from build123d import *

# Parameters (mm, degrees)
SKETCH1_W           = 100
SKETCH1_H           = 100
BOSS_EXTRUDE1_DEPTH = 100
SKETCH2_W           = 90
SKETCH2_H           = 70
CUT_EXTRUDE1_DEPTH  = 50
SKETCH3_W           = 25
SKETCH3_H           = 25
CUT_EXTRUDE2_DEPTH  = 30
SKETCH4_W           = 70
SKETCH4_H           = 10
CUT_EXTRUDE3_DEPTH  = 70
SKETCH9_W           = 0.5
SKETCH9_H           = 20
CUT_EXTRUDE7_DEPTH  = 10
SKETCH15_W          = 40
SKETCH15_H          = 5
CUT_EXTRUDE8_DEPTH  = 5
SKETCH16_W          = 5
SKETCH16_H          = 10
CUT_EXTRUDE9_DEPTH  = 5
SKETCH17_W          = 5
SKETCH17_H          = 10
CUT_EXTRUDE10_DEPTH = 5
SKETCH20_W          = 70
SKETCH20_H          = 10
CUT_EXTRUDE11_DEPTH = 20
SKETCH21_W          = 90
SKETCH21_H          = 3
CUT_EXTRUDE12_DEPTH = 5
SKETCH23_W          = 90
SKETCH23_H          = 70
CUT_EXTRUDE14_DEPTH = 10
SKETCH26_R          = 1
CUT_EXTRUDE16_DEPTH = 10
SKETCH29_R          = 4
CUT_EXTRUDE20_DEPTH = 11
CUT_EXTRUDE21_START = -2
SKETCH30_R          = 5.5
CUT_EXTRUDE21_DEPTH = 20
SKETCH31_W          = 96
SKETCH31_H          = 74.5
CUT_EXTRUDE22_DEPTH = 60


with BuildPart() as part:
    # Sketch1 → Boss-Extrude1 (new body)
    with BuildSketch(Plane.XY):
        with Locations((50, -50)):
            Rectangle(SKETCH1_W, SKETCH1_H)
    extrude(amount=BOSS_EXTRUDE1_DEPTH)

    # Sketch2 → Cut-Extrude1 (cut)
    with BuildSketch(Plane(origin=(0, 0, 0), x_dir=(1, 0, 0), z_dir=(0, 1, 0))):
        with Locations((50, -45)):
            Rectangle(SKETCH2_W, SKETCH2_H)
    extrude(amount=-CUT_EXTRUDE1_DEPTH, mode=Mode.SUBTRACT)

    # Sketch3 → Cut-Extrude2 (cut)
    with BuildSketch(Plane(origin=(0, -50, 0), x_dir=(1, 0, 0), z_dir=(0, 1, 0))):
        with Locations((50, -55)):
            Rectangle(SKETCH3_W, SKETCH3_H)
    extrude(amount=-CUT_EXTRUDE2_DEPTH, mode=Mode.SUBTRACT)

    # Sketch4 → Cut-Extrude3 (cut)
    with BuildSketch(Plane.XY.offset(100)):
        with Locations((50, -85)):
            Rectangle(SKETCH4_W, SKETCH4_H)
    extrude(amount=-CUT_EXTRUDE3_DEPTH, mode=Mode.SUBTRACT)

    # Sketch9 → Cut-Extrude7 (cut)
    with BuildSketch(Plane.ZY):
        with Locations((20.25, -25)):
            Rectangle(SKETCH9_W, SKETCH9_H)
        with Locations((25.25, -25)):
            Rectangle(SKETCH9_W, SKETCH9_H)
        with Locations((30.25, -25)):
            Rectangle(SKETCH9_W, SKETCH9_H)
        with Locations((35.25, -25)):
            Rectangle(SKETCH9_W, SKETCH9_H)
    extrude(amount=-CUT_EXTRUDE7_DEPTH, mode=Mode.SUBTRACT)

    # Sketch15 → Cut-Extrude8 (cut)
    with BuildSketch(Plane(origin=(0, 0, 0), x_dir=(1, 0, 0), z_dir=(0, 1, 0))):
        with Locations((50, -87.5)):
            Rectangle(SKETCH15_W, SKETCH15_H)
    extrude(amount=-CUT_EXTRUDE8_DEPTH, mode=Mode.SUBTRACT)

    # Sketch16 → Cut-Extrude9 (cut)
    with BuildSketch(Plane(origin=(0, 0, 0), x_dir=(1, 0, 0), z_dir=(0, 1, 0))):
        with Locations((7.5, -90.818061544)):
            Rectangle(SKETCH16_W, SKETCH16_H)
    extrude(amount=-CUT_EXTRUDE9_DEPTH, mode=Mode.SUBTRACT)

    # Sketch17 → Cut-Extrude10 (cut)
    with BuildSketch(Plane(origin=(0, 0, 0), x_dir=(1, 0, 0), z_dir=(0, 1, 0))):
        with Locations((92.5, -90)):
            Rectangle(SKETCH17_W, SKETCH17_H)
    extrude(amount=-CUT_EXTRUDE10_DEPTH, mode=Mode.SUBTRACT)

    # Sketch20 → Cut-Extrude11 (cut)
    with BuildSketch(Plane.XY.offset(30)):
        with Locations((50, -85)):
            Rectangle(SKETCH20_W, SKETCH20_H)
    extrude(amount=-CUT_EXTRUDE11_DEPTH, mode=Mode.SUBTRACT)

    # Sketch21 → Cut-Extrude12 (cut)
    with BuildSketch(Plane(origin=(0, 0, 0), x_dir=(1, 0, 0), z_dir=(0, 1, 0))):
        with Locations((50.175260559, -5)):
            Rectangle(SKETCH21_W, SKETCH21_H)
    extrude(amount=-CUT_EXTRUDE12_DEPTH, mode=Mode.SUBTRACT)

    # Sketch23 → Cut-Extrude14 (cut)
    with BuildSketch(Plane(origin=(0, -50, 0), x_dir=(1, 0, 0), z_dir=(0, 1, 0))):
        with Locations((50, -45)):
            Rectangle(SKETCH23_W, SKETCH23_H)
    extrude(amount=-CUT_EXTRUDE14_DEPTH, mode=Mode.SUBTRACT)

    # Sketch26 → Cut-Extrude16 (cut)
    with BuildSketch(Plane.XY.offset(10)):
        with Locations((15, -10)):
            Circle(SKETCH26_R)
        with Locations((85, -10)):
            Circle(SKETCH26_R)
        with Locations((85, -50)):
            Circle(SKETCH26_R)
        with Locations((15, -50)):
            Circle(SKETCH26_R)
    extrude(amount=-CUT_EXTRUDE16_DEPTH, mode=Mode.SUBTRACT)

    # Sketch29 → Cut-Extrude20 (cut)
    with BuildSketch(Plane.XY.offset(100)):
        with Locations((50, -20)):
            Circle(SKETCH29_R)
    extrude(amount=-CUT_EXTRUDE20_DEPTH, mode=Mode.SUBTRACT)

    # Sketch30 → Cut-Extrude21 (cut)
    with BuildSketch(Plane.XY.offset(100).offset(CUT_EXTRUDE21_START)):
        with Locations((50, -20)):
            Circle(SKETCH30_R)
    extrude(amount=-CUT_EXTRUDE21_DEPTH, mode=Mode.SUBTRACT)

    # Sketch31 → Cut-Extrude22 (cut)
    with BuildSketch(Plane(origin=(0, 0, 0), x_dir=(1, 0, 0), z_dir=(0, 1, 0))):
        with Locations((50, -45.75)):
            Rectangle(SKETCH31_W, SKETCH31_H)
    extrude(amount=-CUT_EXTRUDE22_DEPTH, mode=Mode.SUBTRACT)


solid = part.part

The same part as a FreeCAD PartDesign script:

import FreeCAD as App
import Part
import Sketcher
from FreeCAD import Vector


def add_polygon(sketch, points):
    """Adds a closed chain of lines whose ends are joined by coincident constraints."""
    first, n = sketch.GeometryCount, len(points)
    for a, b in zip(points, points[1:] + points[:1]):
        sketch.addGeometry(Part.LineSegment(App.Vector(*a, 0), App.Vector(*b, 0)), False)
    for i in range(n):
        sketch.addConstraint(Sketcher.Constraint("Coincident", first + i, 2, first + (i + 1) % n, 1))

doc = App.newDocument("Part")
body = doc.addObject("PartDesign::Body", "Body")

# Sketch on XY plane
sketch1 = body.newObject("Sketcher::SketchObject", "Sketch")
sketch1.AttachmentSupport = (doc.getObject("XY_Plane"), [""])
sketch1.MapMode = "FlatFace"
add_polygon(sketch1, [(0, 0), (0, -100), (100, -100), (100, 0)])  # lines 0-3
sketch1.addConstraint([
    Sketcher.Constraint("Vertical", 0),
    Sketcher.Constraint("Horizontal", 1),
    Sketcher.Constraint("Vertical", 2),
    Sketcher.Constraint("Horizontal", 3),
    Sketcher.Constraint("Coincident", 3, 2, -1, 1),
    Sketcher.Constraint("Equal", 3, 0),
    Sketcher.Constraint("DistanceX", 1, 1, 1, 2, 100.0),
])
pad1 = body.newObject("PartDesign::Pad", "Pad")
pad1.Profile = sketch1
pad1.Length = 100

# Sketch on XZ plane
sketch2 = body.newObject("Sketcher::SketchObject", "Sketch001")
sketch2.AttachmentSupport = (doc.getObject("XZ_Plane"), [""])
sketch2.MapMode = "FlatFace"
add_polygon(sketch2, [(5, 10), (5, 80), (95, 80), (95, 10)])  # lines 0-3
sketch2.addConstraint([
    Sketcher.Constraint("Vertical", 0),
    Sketcher.Constraint("Horizontal", 1),
    Sketcher.Constraint("Vertical", 2),
    Sketcher.Constraint("Horizontal", 3),
    Sketcher.Constraint("DistanceX", 1, 1, 1, 2, 90.0),
    Sketcher.Constraint("DistanceY", 0, 1, 0, 2, 70.0),
    Sketcher.Constraint("DistanceX", -1, 1, 0, 2, 5.0),
    Sketcher.Constraint("DistanceY", -1, 1, 0, 2, 80.0),
])
pocket1 = body.newObject("PartDesign::Pocket", "Pocket")
pocket1.Profile = sketch2
pocket1.Length = 50
pocket1.Reversed = True

# Sketch on XZ plane
sketch3 = body.newObject("Sketcher::SketchObject", "Sketch002")
sketch3.AttachmentSupport = (doc.getObject("XZ_Plane"), [""])
sketch3.MapMode = "FlatFace"
sketch3.AttachmentOffset = App.Placement(Vector(0, 0, 50), App.Rotation())
add_polygon(sketch3, [(38, 42), (38, 68), (62, 68), (62, 42)])  # lines 0-3
sketch3.addConstraint([
    Sketcher.Constraint("Vertical", 0),
    Sketcher.Constraint("Horizontal", 1),
    Sketcher.Constraint("Vertical", 2),
    Sketcher.Constraint("Horizontal", 3),
    Sketcher.Constraint("Equal", 3, 0),
    Sketcher.Constraint("DistanceX", 1, 1, 1, 2, 25.0),
    Sketcher.Constraint("DistanceX", -1, 1, 0, 2, 37.5),
    Sketcher.Constraint("DistanceY", -1, 1, 0, 2, 67.5),
])
pocket2 = body.newObject("PartDesign::Pocket", "Pocket001")
pocket2.Profile = sketch3
pocket2.Length = 30
pocket2.Reversed = True

# Sketch on XY plane
sketch4 = body.newObject("Sketcher::SketchObject", "Sketch003")
sketch4.AttachmentSupport = (doc.getObject("XY_Plane"), [""])
sketch4.MapMode = "FlatFace"
sketch4.AttachmentOffset = App.Placement(Vector(0, 0, 100), App.Rotation())
add_polygon(sketch4, [(15, -80), (15, -90), (85, -90), (85, -80)])  # lines 0-3
sketch4.addConstraint([
    Sketcher.Constraint("Vertical", 0),
    Sketcher.Constraint("Horizontal", 1),
    Sketcher.Constraint("Vertical", 2),
    Sketcher.Constraint("Horizontal", 3),
    Sketcher.Constraint("DistanceX", 1, 1, 1, 2, 70.0),
    Sketcher.Constraint("DistanceY", 0, 2, 0, 1, 10.0),
    Sketcher.Constraint("DistanceX", -1, 1, 0, 2, 15.0),
    Sketcher.Constraint("DistanceY", 0, 2, -1, 1, 90.0),
])
pocket3 = body.newObject("PartDesign::Pocket", "Pocket002")
pocket3.Profile = sketch4
pocket3.Length = 70

# Sketch on YZ plane
sketch5 = body.newObject("Sketcher::SketchObject", "Sketch004")
sketch5.AttachmentSupport = (doc.getObject("YZ_Plane"), [""])
sketch5.MapMode = "FlatFace"
add_polygon(sketch5, [(-15, 20), (-35, 20), (-35, 20.5), (-15, 20.5)])  # lines 0-3
add_polygon(sketch5, [(-15, 25), (-35, 25), (-35, 25.5), (-15, 25.5)])  # lines 4-7
add_polygon(sketch5, [(-15, 30), (-35, 30), (-35, 30.5), (-15, 30.5)])  # lines 8-11
add_polygon(sketch5, [(-15, 35), (-35, 35), (-35, 35.5), (-15, 35.5)])  # lines 12-15
sketch5.addConstraint([
    Sketcher.Constraint("Horizontal", 0),
    Sketcher.Constraint("Vertical", 1),
    Sketcher.Constraint("Horizontal", 2),
    Sketcher.Constraint("Vertical", 3),
    Sketcher.Constraint("Horizontal", 4),
    Sketcher.Constraint("Vertical", 5),
    Sketcher.Constraint("Horizontal", 6),
    Sketcher.Constraint("Vertical", 7),
    Sketcher.Constraint("Horizontal", 8),
    Sketcher.Constraint("Vertical", 9),
    Sketcher.Constraint("Horizontal", 10),
    Sketcher.Constraint("Vertical", 11),
    Sketcher.Constraint("Horizontal", 12),
    Sketcher.Constraint("Vertical", 13),
    Sketcher.Constraint("Horizontal", 14),
    Sketcher.Constraint("Vertical", 15),
    Sketcher.Constraint("Vertical", 1, 2, 4, 2),
    Sketcher.Constraint("Vertical", 3, 2, 6, 2),
    Sketcher.Constraint("Vertical", 5, 2, 8, 2),
    Sketcher.Constraint("Vertical", 7, 2, 10, 2),
    Sketcher.Constraint("Vertical", 9, 2, 12, 2),
    Sketcher.Constraint("Vertical", 11, 2, 14, 2),
    Sketcher.Constraint("Equal", 3, 5),
    Sketcher.Constraint("Equal", 7, 9),
    Sketcher.Constraint("Equal", 11, 13),
    Sketcher.Constraint("DistanceX", 0, 2, 0, 1, 20.0),
    Sketcher.Constraint("DistanceY", 1, 1, 1, 2, 0.5),
    Sketcher.Constraint("DistanceX", 0, 2, -1, 1, 35.0),
    Sketcher.Constraint("DistanceY", -1, 1, 0, 2, 20.0),
    Sketcher.Constraint("DistanceY", -1, 1, 4, 2, 25.0),
    Sketcher.Constraint("DistanceY", -1, 1, 8, 2, 30.0),
    Sketcher.Constraint("DistanceY", -1, 1, 12, 2, 35.0),
])
pocket4 = body.newObject("PartDesign::Pocket", "Pocket003")
pocket4.Profile = sketch5
pocket4.Length = 10
pocket4.Reversed = True

# Sketch on XZ plane
sketch6 = body.newObject("Sketcher::SketchObject", "Sketch005")
sketch6.AttachmentSupport = (doc.getObject("XZ_Plane"), [""])
sketch6.MapMode = "FlatFace"
add_polygon(sketch6, [(30, 85), (30, 90), (70, 90), (70, 85)])  # lines 0-3
sketch6.addConstraint([
    Sketcher.Constraint("Vertical", 0),
    Sketcher.Constraint("Horizontal", 1),
    Sketcher.Constraint("Vertical", 2),
    Sketcher.Constraint("Horizontal", 3),
    Sketcher.Constraint("DistanceX", 1, 1, 1, 2, 40.0),
    Sketcher.Constraint("DistanceY", 0, 1, 0, 2, 5.0),
    Sketcher.Constraint("DistanceX", -1, 1, 0, 2, 30.0),
    Sketcher.Constraint("DistanceY", -1, 1, 0, 2, 90.0),
])
pocket5 = body.newObject("PartDesign::Pocket", "Pocket004")
pocket5.Profile = sketch6
pocket5.Length = 5
pocket5.Reversed = True

# Sketch on XZ plane
sketch7 = body.newObject("Sketcher::SketchObject", "Sketch006")
sketch7.AttachmentSupport = (doc.getObject("XZ_Plane"), [""])
sketch7.MapMode = "FlatFace"
add_polygon(sketch7, [(5, 86), (5, 96), (10, 96), (10, 86)])  # lines 0-3
sketch7.addConstraint([
    Sketcher.Constraint("Vertical", 0),
    Sketcher.Constraint("Horizontal", 1),
    Sketcher.Constraint("Vertical", 2),
    Sketcher.Constraint("Horizontal", 3),
    Sketcher.Constraint("DistanceX", 1, 1, 1, 2, 5.0),
    Sketcher.Constraint("DistanceY", 0, 1, 0, 2, 10.0),
    Sketcher.Constraint("DistanceX", -1, 1, 0, 2, 5.0),
    Sketcher.Constraint("DistanceY", -1, 1, 0, 2, 95.818062),
])
pocket6 = body.newObject("PartDesign::Pocket", "Pocket005")
pocket6.Profile = sketch7
pocket6.Length = 5
pocket6.Reversed = True

# Sketch on XZ plane
sketch8 = body.newObject("Sketcher::SketchObject", "Sketch007")
sketch8.AttachmentSupport = (doc.getObject("XZ_Plane"), [""])
sketch8.MapMode = "FlatFace"
add_polygon(sketch8, [(90, 85), (90, 95), (95, 95), (95, 85)])  # lines 0-3
sketch8.addConstraint([
    Sketcher.Constraint("Vertical", 0),
    Sketcher.Constraint("Horizontal", 1),
    Sketcher.Constraint("Vertical", 2),
    Sketcher.Constraint("Horizontal", 3),
    Sketcher.Constraint("DistanceX", 1, 1, 1, 2, 5.0),
    Sketcher.Constraint("DistanceY", 0, 1, 0, 2, 10.0),
    Sketcher.Constraint("DistanceX", -1, 1, 0, 2, 90.0),
    Sketcher.Constraint("DistanceY", -1, 1, 0, 2, 95.0),
])
pocket7 = body.newObject("PartDesign::Pocket", "Pocket006")
pocket7.Profile = sketch8
pocket7.Length = 5
pocket7.Reversed = True

# Sketch on XY plane
sketch9 = body.newObject("Sketcher::SketchObject", "Sketch008")
sketch9.AttachmentSupport = (doc.getObject("XY_Plane"), [""])
sketch9.MapMode = "FlatFace"
sketch9.AttachmentOffset = App.Placement(Vector(0, 0, 30), App.Rotation())
add_polygon(sketch9, [(15, -80), (15, -90), (85, -90), (85, -80)])  # lines 0-3
sketch9.addConstraint([
    Sketcher.Constraint("Vertical", 0),
    Sketcher.Constraint("Horizontal", 1),
    Sketcher.Constraint("Vertical", 2),
    Sketcher.Constraint("Horizontal", 3),
    Sketcher.Constraint("DistanceX", 1, 1, 1, 2, 70.0),
    Sketcher.Constraint("DistanceY", 0, 2, 0, 1, 10.0),
    Sketcher.Constraint("DistanceX", -1, 1, 0, 2, 15.0),
    Sketcher.Constraint("DistanceY", 0, 2, -1, 1, 90.0),
])
pocket8 = body.newObject("PartDesign::Pocket", "Pocket007")
pocket8.Profile = sketch9
pocket8.Length = 20

# Sketch on XZ plane
sketch10 = body.newObject("Sketcher::SketchObject", "Sketch009")
sketch10.AttachmentSupport = (doc.getObject("XZ_Plane"), [""])
sketch10.MapMode = "FlatFace"
add_polygon(sketch10, [(5.2, 3.5), (5.2, 6.5), (95.2, 6.5), (95.2, 3.5)])  # lines 0-3
sketch10.addConstraint([
    Sketcher.Constraint("Vertical", 0),
    Sketcher.Constraint("Horizontal", 1),
    Sketcher.Constraint("Vertical", 2),
    Sketcher.Constraint("Horizontal", 3),
    Sketcher.Constraint("DistanceX", 1, 1, 1, 2, 90.0),
    Sketcher.Constraint("DistanceY", 0, 1, 0, 2, 3.0),
    Sketcher.Constraint("DistanceY", -1, 1, 0, 2, 6.5),
    Sketcher.Constraint("DistanceX", -1, 1, 0, 2, 5.175261),
])
pocket9 = body.newObject("PartDesign::Pocket", "Pocket008")
pocket9.Profile = sketch10
pocket9.Length = 5
pocket9.Reversed = True

# Sketch on XZ plane
sketch11 = body.newObject("Sketcher::SketchObject", "Sketch010")
sketch11.AttachmentSupport = (doc.getObject("XZ_Plane"), [""])
sketch11.MapMode = "FlatFace"
sketch11.AttachmentOffset = App.Placement(Vector(0, 0, 50), App.Rotation())
add_polygon(sketch11, [(5, 10), (5, 80), (95, 80), (95, 10)])  # lines 0-3
sketch11.addConstraint([
    Sketcher.Constraint("Vertical", 0),
    Sketcher.Constraint("Horizontal", 1),
    Sketcher.Constraint("Vertical", 2),
    Sketcher.Constraint("Horizontal", 3),
    Sketcher.Constraint("DistanceX", 1, 1, 1, 2, 90.0),
    Sketcher.Constraint("DistanceY", 0, 1, 0, 2, 70.0),
    Sketcher.Constraint("DistanceX", -1, 1, 0, 2, 5.0),
    Sketcher.Constraint("DistanceY", -1, 1, 0, 2, 80.0),
])
pocket10 = body.newObject("PartDesign::Pocket", "Pocket009")
pocket10.Profile = sketch11
pocket10.Length = 10
pocket10.Reversed = True

# Sketch on XY plane
sketch12 = body.newObject("Sketcher::SketchObject", "Sketch011")
sketch12.AttachmentSupport = (doc.getObject("XY_Plane"), [""])
sketch12.MapMode = "FlatFace"
sketch12.AttachmentOffset = App.Placement(Vector(0, 0, 10), App.Rotation())
sketch12.addGeometry([
    Part.Circle(Vector(15, -10, 0), Vector(0, 0, 1), 1),
    Part.Circle(Vector(85, -10, 0), Vector(0, 0, 1), 1),
    Part.Circle(Vector(85, -50, 0), Vector(0, 0, 1), 1),
    Part.Circle(Vector(15, -50, 0), Vector(0, 0, 1), 1),
], False)
sketch12.addConstraint([
    Sketcher.Constraint("Equal", 0, 1),
    Sketcher.Constraint("Equal", 1, 2),
    Sketcher.Constraint("Equal", 2, 3),
    Sketcher.Constraint("Horizontal", 0, 3, 1, 3),
    Sketcher.Constraint("Horizontal", 2, 3, 3, 3),
    Sketcher.Constraint("Vertical", 1, 3, 2, 3),
    Sketcher.Constraint("Vertical", 0, 3, 3, 3),
    Sketcher.Constraint("Diameter", 0, 2.0),
    Sketcher.Constraint("DistanceX", -1, 1, 0, 3, 15.0),
    Sketcher.Constraint("DistanceY", 0, 3, -1, 1, 10.0),
    Sketcher.Constraint("DistanceX", -1, 1, 1, 3, 85.0),
    Sketcher.Constraint("DistanceY", 2, 3, -1, 1, 50.0),
])
pocket11 = body.newObject("PartDesign::Pocket", "Pocket010")
pocket11.Profile = sketch12
pocket11.Length = 10

# Sketch on XY plane
sketch13 = body.newObject("Sketcher::SketchObject", "Sketch012")
sketch13.AttachmentSupport = (doc.getObject("XY_Plane"), [""])
sketch13.MapMode = "FlatFace"
sketch13.AttachmentOffset = App.Placement(Vector(0, 0, 100), App.Rotation())
sketch13.addGeometry(Part.Circle(Vector(50, -20, 0), Vector(0, 0, 1), 4), False)
sketch13.addConstraint([
    Sketcher.Constraint("Diameter", 0, 8.0),
    Sketcher.Constraint("DistanceX", -1, 1, 0, 3, 50.0),
    Sketcher.Constraint("DistanceY", 0, 3, -1, 1, 20.0),
])
pocket12 = body.newObject("PartDesign::Pocket", "Pocket011")
pocket12.Profile = sketch13
pocket12.Length = 11

# Sketch on XY plane
sketch14 = body.newObject("Sketcher::SketchObject", "Sketch013")
sketch14.AttachmentSupport = (doc.getObject("XY_Plane"), [""])
sketch14.MapMode = "FlatFace"
sketch14.AttachmentOffset = App.Placement(Vector(0, 0, 98), App.Rotation())
sketch14.addGeometry(Part.Circle(Vector(50, -20, 0), Vector(0, 0, 1), 6), False)
sketch14.addConstraint([
    Sketcher.Constraint("Diameter", 0, 11.0),
    Sketcher.Constraint("DistanceX", -1, 1, 0, 3, 50.0),
    Sketcher.Constraint("DistanceY", 0, 3, -1, 1, 20.0),
])
pocket13 = body.newObject("PartDesign::Pocket", "Pocket012")
pocket13.Profile = sketch14
pocket13.Length = 20

# Sketch on XZ plane
sketch15 = body.newObject("Sketcher::SketchObject", "Sketch014")
sketch15.AttachmentSupport = (doc.getObject("XZ_Plane"), [""])
sketch15.MapMode = "FlatFace"
add_polygon(sketch15, [(2, 8), (2, 83), (98, 83), (98, 8)])  # lines 0-3
sketch15.addConstraint([
    Sketcher.Constraint("Vertical", 0),
    Sketcher.Constraint("Horizontal", 1),
    Sketcher.Constraint("Vertical", 2),
    Sketcher.Constraint("Horizontal", 3),
    Sketcher.Constraint("DistanceX", 1, 1, 1, 2, 96.0),
    Sketcher.Constraint("DistanceY", 0, 1, 0, 2, 74.5),
    Sketcher.Constraint("DistanceX", -1, 1, 0, 2, 2.0),
    Sketcher.Constraint("DistanceY", -1, 1, 0, 2, 83.0),
])
pocket14 = body.newObject("PartDesign::Pocket", "Pocket013")
pocket14.Profile = sketch15
pocket14.Length = 60
pocket14.Reversed = True

doc.recompute()
